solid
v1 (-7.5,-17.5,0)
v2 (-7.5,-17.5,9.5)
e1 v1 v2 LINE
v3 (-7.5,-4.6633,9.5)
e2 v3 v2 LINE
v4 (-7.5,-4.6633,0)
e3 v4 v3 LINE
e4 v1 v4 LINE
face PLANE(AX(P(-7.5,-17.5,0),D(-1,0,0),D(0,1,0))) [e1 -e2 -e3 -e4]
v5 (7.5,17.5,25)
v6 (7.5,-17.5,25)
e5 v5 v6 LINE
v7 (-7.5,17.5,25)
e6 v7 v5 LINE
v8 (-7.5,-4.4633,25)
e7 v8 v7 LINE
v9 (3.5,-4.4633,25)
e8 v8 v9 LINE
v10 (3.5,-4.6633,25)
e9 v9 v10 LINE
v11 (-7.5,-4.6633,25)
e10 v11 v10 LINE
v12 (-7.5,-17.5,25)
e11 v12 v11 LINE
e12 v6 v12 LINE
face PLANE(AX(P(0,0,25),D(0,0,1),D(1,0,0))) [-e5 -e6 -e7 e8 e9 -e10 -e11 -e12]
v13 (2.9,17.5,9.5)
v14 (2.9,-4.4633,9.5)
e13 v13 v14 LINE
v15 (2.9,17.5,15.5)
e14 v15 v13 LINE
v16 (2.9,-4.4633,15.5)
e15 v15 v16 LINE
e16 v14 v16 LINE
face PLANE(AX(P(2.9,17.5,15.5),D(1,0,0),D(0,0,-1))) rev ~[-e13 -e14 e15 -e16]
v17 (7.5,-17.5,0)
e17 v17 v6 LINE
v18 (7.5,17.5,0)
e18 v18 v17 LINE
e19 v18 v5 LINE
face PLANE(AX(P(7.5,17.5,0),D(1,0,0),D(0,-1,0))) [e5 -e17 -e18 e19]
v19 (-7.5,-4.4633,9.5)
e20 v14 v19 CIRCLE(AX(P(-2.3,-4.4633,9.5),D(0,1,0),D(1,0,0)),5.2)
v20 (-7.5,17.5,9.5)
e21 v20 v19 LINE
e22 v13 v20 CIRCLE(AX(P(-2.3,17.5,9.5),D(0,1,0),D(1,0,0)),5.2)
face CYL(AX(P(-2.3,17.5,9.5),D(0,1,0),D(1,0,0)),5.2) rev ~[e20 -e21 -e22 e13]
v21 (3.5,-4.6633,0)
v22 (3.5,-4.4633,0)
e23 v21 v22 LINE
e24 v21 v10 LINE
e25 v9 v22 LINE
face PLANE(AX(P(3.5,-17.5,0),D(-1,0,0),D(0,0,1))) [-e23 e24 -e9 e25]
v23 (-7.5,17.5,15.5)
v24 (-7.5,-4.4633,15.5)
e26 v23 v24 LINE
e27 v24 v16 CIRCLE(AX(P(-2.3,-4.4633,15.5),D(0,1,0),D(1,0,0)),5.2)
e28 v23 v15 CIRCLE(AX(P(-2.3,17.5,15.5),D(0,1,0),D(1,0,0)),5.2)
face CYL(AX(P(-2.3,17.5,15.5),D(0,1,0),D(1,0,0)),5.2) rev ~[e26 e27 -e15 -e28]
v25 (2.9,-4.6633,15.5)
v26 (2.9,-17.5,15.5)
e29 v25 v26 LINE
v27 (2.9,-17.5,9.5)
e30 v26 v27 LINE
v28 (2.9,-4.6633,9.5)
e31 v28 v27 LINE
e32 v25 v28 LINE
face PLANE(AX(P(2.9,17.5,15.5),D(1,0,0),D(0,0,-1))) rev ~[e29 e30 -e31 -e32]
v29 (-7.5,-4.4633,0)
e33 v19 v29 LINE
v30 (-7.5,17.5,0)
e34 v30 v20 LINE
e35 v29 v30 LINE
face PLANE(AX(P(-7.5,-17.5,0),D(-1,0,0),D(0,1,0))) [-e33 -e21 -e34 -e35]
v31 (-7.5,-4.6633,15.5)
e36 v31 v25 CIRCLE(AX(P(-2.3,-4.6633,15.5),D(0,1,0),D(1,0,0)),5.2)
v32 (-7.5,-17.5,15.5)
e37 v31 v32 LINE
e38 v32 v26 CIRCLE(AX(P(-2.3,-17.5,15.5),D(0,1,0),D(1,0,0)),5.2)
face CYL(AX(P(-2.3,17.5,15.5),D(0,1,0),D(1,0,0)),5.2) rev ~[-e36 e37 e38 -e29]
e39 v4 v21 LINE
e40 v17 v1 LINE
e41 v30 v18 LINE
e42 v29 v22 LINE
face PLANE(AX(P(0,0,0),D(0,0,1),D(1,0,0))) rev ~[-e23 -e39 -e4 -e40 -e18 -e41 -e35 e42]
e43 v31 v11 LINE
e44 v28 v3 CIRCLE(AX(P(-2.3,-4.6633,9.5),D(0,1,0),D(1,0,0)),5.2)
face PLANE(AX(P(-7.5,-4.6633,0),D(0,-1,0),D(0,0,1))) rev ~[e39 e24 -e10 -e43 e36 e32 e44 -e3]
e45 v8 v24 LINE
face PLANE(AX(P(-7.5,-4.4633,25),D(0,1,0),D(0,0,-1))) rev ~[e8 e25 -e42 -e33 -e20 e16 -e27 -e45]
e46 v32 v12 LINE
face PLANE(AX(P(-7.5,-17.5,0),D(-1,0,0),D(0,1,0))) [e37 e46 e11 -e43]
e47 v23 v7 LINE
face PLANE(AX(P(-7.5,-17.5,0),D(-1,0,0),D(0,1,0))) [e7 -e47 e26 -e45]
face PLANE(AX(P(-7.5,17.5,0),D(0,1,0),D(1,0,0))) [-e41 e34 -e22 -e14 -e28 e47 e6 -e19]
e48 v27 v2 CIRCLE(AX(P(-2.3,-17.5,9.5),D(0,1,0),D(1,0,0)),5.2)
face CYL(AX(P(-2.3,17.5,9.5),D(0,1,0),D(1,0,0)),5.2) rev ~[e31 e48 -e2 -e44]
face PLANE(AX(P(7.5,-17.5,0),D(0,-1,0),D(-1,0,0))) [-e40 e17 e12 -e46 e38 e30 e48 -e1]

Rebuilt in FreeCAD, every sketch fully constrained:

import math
import FreeCAD as App
import Part
import Sketcher

V = App.Vector


def add_polygon(sketch, points):
    """Adds a closed chain of lines whose ends are joined by coincident constraints."""
    first, n = sketch.GeometryCount, len(points)
    for a, b in zip(points, points[1:] + points[:1]):
        sketch.addGeometry(Part.LineSegment(App.Vector(*a, 0), App.Vector(*b, 0)), False)
    for i in range(n):
        sketch.addConstraint(Sketcher.Constraint("Coincident", first + i, 2, first + (i + 1) % n, 1))

doc = App.newDocument("Part")
params = doc.addObject("Spreadsheet::Sheet", "Params")
for row, (alias, value) in enumerate([
    ("sketch1_width", "15 mm"),
    ("sketch1_height", "35 mm"),
    ("pad1_length", "25 mm"),
    ("sketch2_radius", "5.2 mm"),
    ("sketch2_height", "6 mm"),
    ("pocket1_length", "35 mm"),
    ("sketch3_width", "0.2 mm"),
    ("sketch3_height", "25 mm"),
    ("pocket2_length", "11 mm"),
], start=1):
    params.set(f"A{row}", alias)
    params.set(f"B{row}", "=" + value)
    params.setAlias(f"B{row}", alias)

body = doc.addObject("PartDesign::Body", "Body")

sketch1 = doc.addObject("Sketcher::SketchObject", "Sketch")
body.addObject(sketch1)
sketch1.AttachmentSupport = (doc.XY_Plane, [""])
sketch1.MapMode = "FlatFace"
add_polygon(sketch1, [(8, 18), (-8, 18), (-8, -18), (8, -18)])
sketch1.addConstraint([
    Sketcher.Constraint("Horizontal", 0),
    Sketcher.Constraint("Vertical", 1),
    Sketcher.Constraint("Horizontal", 2),
    Sketcher.Constraint("Vertical", 3),
    Sketcher.Constraint("Symmetric", 0, 2, 2, 2, -1, 1),
    Sketcher.Constraint("DistanceX", 0, 2, 0, 1, 15.0),
    Sketcher.Constraint("DistanceY", 1, 2, 1, 1, 35.0),
])
sketch1.setExpression("Constraints[9]", "Params.sketch1_width")
sketch1.setExpression("Constraints[10]", "Params.sketch1_height")
pad1 = doc.addObject("PartDesign::Pad", "Pad")
body.addObject(pad1)
pad1.Profile = sketch1
pad1.setExpression("Length", "Params.pad1_length")

sketch2 = doc.addObject("Sketcher::SketchObject", "Sketch001")
body.addObject(sketch2)
sketch2.AttachmentSupport = (doc.XZ_Plane, [""])
sketch2.MapMode = "FlatFace"
sketch2.AttachmentOffset = App.Placement(V(0, 0, -17.5), App.Rotation())
sketch2.addGeometry([
    Part.ArcOfCircle(Part.Circle(V(-2, 10, 0), V(0, 0, 1), 5), math.radians(180), math.radians(360)),
    Part.LineSegment(V(-8, 10, 0), V(-8, 16, 0)),
    Part.ArcOfCircle(Part.Circle(V(-2, 16, 0), V(0, 0, 1), 5), math.radians(0), math.radians(180)),
    Part.LineSegment(V(3, 16, 0), V(3, 10, 0)),
], False)
sketch2.addConstraint([
    Sketcher.Constraint("Tangent", 0, 1, 1, 1),
    Sketcher.Constraint("Tangent", 1, 2, 2, 2),
    Sketcher.Constraint("Tangent", 2, 1, 3, 1),
    Sketcher.Constraint("Tangent", 3, 2, 0, 2),
    Sketcher.Constraint("Vertical", 1),
    Sketcher.Constraint("Vertical", 3),
    Sketcher.Constraint("Radius", 0, 5.2),
    Sketcher.Constraint("DistanceY", 1, 1, 1, 2, 6.0),
    Sketcher.Constraint("DistanceX", 0, 3, -1, 1, 2.3),
    Sketcher.Constraint("DistanceY", -1, 1, 0, 3, 9.5),
])
sketch2.setExpression("Constraints[6]", "Params.sketch2_radius")
sketch2.setExpression("Constraints[7]", "Params.sketch2_height")
pocket1 = doc.addObject("PartDesign::Pocket", "Pocket")
body.addObject(pocket1)
pocket1.Profile = sketch2
pocket1.setExpression("Length", "Params.pocket1_length")
pocket1.Reversed = True

sketch3 = doc.addObject("Sketcher::SketchObject", "Sketch002")
body.addObject(sketch3)
sketch3.AttachmentSupport = (doc.YZ_Plane, [""])
sketch3.MapMode = "FlatFace"
sketch3.AttachmentOffset = App.Placement(V(0, 0, -7.5), App.Rotation())
add_polygon(sketch3, [(-4.66, 25), (-4.46, 25), (-4.46, 0), (-4.66, 0)])
sketch3.addConstraint([
    Sketcher.Constraint("Horizontal", 0),
    Sketcher.Constraint("Vertical", 1),
    Sketcher.Constraint("Horizontal", 2),
    Sketcher.Constraint("Vertical", 3),
    Sketcher.Constraint("PointOnObject", 1, 2, -1),
    Sketcher.Constraint("DistanceX", 0, 1, 0, 2, 0.2),
    Sketcher.Constraint("DistanceY", 1, 2, 1, 1, 25.0),
    Sketcher.Constraint("DistanceX", 0, 2, -1, 1, 4.4633),
])
sketch3.setExpression("Constraints[9]", "Params.sketch3_width")
sketch3.setExpression("Constraints[10]", "Params.sketch3_height")
pocket2 = doc.addObject("PartDesign::Pocket", "Pocket001")
body.addObject(pocket2)
pocket2.Profile = sketch3
pocket2.setExpression("Length", "Params.pocket2_length")
pocket2.Reversed = True

doc.recompute()
